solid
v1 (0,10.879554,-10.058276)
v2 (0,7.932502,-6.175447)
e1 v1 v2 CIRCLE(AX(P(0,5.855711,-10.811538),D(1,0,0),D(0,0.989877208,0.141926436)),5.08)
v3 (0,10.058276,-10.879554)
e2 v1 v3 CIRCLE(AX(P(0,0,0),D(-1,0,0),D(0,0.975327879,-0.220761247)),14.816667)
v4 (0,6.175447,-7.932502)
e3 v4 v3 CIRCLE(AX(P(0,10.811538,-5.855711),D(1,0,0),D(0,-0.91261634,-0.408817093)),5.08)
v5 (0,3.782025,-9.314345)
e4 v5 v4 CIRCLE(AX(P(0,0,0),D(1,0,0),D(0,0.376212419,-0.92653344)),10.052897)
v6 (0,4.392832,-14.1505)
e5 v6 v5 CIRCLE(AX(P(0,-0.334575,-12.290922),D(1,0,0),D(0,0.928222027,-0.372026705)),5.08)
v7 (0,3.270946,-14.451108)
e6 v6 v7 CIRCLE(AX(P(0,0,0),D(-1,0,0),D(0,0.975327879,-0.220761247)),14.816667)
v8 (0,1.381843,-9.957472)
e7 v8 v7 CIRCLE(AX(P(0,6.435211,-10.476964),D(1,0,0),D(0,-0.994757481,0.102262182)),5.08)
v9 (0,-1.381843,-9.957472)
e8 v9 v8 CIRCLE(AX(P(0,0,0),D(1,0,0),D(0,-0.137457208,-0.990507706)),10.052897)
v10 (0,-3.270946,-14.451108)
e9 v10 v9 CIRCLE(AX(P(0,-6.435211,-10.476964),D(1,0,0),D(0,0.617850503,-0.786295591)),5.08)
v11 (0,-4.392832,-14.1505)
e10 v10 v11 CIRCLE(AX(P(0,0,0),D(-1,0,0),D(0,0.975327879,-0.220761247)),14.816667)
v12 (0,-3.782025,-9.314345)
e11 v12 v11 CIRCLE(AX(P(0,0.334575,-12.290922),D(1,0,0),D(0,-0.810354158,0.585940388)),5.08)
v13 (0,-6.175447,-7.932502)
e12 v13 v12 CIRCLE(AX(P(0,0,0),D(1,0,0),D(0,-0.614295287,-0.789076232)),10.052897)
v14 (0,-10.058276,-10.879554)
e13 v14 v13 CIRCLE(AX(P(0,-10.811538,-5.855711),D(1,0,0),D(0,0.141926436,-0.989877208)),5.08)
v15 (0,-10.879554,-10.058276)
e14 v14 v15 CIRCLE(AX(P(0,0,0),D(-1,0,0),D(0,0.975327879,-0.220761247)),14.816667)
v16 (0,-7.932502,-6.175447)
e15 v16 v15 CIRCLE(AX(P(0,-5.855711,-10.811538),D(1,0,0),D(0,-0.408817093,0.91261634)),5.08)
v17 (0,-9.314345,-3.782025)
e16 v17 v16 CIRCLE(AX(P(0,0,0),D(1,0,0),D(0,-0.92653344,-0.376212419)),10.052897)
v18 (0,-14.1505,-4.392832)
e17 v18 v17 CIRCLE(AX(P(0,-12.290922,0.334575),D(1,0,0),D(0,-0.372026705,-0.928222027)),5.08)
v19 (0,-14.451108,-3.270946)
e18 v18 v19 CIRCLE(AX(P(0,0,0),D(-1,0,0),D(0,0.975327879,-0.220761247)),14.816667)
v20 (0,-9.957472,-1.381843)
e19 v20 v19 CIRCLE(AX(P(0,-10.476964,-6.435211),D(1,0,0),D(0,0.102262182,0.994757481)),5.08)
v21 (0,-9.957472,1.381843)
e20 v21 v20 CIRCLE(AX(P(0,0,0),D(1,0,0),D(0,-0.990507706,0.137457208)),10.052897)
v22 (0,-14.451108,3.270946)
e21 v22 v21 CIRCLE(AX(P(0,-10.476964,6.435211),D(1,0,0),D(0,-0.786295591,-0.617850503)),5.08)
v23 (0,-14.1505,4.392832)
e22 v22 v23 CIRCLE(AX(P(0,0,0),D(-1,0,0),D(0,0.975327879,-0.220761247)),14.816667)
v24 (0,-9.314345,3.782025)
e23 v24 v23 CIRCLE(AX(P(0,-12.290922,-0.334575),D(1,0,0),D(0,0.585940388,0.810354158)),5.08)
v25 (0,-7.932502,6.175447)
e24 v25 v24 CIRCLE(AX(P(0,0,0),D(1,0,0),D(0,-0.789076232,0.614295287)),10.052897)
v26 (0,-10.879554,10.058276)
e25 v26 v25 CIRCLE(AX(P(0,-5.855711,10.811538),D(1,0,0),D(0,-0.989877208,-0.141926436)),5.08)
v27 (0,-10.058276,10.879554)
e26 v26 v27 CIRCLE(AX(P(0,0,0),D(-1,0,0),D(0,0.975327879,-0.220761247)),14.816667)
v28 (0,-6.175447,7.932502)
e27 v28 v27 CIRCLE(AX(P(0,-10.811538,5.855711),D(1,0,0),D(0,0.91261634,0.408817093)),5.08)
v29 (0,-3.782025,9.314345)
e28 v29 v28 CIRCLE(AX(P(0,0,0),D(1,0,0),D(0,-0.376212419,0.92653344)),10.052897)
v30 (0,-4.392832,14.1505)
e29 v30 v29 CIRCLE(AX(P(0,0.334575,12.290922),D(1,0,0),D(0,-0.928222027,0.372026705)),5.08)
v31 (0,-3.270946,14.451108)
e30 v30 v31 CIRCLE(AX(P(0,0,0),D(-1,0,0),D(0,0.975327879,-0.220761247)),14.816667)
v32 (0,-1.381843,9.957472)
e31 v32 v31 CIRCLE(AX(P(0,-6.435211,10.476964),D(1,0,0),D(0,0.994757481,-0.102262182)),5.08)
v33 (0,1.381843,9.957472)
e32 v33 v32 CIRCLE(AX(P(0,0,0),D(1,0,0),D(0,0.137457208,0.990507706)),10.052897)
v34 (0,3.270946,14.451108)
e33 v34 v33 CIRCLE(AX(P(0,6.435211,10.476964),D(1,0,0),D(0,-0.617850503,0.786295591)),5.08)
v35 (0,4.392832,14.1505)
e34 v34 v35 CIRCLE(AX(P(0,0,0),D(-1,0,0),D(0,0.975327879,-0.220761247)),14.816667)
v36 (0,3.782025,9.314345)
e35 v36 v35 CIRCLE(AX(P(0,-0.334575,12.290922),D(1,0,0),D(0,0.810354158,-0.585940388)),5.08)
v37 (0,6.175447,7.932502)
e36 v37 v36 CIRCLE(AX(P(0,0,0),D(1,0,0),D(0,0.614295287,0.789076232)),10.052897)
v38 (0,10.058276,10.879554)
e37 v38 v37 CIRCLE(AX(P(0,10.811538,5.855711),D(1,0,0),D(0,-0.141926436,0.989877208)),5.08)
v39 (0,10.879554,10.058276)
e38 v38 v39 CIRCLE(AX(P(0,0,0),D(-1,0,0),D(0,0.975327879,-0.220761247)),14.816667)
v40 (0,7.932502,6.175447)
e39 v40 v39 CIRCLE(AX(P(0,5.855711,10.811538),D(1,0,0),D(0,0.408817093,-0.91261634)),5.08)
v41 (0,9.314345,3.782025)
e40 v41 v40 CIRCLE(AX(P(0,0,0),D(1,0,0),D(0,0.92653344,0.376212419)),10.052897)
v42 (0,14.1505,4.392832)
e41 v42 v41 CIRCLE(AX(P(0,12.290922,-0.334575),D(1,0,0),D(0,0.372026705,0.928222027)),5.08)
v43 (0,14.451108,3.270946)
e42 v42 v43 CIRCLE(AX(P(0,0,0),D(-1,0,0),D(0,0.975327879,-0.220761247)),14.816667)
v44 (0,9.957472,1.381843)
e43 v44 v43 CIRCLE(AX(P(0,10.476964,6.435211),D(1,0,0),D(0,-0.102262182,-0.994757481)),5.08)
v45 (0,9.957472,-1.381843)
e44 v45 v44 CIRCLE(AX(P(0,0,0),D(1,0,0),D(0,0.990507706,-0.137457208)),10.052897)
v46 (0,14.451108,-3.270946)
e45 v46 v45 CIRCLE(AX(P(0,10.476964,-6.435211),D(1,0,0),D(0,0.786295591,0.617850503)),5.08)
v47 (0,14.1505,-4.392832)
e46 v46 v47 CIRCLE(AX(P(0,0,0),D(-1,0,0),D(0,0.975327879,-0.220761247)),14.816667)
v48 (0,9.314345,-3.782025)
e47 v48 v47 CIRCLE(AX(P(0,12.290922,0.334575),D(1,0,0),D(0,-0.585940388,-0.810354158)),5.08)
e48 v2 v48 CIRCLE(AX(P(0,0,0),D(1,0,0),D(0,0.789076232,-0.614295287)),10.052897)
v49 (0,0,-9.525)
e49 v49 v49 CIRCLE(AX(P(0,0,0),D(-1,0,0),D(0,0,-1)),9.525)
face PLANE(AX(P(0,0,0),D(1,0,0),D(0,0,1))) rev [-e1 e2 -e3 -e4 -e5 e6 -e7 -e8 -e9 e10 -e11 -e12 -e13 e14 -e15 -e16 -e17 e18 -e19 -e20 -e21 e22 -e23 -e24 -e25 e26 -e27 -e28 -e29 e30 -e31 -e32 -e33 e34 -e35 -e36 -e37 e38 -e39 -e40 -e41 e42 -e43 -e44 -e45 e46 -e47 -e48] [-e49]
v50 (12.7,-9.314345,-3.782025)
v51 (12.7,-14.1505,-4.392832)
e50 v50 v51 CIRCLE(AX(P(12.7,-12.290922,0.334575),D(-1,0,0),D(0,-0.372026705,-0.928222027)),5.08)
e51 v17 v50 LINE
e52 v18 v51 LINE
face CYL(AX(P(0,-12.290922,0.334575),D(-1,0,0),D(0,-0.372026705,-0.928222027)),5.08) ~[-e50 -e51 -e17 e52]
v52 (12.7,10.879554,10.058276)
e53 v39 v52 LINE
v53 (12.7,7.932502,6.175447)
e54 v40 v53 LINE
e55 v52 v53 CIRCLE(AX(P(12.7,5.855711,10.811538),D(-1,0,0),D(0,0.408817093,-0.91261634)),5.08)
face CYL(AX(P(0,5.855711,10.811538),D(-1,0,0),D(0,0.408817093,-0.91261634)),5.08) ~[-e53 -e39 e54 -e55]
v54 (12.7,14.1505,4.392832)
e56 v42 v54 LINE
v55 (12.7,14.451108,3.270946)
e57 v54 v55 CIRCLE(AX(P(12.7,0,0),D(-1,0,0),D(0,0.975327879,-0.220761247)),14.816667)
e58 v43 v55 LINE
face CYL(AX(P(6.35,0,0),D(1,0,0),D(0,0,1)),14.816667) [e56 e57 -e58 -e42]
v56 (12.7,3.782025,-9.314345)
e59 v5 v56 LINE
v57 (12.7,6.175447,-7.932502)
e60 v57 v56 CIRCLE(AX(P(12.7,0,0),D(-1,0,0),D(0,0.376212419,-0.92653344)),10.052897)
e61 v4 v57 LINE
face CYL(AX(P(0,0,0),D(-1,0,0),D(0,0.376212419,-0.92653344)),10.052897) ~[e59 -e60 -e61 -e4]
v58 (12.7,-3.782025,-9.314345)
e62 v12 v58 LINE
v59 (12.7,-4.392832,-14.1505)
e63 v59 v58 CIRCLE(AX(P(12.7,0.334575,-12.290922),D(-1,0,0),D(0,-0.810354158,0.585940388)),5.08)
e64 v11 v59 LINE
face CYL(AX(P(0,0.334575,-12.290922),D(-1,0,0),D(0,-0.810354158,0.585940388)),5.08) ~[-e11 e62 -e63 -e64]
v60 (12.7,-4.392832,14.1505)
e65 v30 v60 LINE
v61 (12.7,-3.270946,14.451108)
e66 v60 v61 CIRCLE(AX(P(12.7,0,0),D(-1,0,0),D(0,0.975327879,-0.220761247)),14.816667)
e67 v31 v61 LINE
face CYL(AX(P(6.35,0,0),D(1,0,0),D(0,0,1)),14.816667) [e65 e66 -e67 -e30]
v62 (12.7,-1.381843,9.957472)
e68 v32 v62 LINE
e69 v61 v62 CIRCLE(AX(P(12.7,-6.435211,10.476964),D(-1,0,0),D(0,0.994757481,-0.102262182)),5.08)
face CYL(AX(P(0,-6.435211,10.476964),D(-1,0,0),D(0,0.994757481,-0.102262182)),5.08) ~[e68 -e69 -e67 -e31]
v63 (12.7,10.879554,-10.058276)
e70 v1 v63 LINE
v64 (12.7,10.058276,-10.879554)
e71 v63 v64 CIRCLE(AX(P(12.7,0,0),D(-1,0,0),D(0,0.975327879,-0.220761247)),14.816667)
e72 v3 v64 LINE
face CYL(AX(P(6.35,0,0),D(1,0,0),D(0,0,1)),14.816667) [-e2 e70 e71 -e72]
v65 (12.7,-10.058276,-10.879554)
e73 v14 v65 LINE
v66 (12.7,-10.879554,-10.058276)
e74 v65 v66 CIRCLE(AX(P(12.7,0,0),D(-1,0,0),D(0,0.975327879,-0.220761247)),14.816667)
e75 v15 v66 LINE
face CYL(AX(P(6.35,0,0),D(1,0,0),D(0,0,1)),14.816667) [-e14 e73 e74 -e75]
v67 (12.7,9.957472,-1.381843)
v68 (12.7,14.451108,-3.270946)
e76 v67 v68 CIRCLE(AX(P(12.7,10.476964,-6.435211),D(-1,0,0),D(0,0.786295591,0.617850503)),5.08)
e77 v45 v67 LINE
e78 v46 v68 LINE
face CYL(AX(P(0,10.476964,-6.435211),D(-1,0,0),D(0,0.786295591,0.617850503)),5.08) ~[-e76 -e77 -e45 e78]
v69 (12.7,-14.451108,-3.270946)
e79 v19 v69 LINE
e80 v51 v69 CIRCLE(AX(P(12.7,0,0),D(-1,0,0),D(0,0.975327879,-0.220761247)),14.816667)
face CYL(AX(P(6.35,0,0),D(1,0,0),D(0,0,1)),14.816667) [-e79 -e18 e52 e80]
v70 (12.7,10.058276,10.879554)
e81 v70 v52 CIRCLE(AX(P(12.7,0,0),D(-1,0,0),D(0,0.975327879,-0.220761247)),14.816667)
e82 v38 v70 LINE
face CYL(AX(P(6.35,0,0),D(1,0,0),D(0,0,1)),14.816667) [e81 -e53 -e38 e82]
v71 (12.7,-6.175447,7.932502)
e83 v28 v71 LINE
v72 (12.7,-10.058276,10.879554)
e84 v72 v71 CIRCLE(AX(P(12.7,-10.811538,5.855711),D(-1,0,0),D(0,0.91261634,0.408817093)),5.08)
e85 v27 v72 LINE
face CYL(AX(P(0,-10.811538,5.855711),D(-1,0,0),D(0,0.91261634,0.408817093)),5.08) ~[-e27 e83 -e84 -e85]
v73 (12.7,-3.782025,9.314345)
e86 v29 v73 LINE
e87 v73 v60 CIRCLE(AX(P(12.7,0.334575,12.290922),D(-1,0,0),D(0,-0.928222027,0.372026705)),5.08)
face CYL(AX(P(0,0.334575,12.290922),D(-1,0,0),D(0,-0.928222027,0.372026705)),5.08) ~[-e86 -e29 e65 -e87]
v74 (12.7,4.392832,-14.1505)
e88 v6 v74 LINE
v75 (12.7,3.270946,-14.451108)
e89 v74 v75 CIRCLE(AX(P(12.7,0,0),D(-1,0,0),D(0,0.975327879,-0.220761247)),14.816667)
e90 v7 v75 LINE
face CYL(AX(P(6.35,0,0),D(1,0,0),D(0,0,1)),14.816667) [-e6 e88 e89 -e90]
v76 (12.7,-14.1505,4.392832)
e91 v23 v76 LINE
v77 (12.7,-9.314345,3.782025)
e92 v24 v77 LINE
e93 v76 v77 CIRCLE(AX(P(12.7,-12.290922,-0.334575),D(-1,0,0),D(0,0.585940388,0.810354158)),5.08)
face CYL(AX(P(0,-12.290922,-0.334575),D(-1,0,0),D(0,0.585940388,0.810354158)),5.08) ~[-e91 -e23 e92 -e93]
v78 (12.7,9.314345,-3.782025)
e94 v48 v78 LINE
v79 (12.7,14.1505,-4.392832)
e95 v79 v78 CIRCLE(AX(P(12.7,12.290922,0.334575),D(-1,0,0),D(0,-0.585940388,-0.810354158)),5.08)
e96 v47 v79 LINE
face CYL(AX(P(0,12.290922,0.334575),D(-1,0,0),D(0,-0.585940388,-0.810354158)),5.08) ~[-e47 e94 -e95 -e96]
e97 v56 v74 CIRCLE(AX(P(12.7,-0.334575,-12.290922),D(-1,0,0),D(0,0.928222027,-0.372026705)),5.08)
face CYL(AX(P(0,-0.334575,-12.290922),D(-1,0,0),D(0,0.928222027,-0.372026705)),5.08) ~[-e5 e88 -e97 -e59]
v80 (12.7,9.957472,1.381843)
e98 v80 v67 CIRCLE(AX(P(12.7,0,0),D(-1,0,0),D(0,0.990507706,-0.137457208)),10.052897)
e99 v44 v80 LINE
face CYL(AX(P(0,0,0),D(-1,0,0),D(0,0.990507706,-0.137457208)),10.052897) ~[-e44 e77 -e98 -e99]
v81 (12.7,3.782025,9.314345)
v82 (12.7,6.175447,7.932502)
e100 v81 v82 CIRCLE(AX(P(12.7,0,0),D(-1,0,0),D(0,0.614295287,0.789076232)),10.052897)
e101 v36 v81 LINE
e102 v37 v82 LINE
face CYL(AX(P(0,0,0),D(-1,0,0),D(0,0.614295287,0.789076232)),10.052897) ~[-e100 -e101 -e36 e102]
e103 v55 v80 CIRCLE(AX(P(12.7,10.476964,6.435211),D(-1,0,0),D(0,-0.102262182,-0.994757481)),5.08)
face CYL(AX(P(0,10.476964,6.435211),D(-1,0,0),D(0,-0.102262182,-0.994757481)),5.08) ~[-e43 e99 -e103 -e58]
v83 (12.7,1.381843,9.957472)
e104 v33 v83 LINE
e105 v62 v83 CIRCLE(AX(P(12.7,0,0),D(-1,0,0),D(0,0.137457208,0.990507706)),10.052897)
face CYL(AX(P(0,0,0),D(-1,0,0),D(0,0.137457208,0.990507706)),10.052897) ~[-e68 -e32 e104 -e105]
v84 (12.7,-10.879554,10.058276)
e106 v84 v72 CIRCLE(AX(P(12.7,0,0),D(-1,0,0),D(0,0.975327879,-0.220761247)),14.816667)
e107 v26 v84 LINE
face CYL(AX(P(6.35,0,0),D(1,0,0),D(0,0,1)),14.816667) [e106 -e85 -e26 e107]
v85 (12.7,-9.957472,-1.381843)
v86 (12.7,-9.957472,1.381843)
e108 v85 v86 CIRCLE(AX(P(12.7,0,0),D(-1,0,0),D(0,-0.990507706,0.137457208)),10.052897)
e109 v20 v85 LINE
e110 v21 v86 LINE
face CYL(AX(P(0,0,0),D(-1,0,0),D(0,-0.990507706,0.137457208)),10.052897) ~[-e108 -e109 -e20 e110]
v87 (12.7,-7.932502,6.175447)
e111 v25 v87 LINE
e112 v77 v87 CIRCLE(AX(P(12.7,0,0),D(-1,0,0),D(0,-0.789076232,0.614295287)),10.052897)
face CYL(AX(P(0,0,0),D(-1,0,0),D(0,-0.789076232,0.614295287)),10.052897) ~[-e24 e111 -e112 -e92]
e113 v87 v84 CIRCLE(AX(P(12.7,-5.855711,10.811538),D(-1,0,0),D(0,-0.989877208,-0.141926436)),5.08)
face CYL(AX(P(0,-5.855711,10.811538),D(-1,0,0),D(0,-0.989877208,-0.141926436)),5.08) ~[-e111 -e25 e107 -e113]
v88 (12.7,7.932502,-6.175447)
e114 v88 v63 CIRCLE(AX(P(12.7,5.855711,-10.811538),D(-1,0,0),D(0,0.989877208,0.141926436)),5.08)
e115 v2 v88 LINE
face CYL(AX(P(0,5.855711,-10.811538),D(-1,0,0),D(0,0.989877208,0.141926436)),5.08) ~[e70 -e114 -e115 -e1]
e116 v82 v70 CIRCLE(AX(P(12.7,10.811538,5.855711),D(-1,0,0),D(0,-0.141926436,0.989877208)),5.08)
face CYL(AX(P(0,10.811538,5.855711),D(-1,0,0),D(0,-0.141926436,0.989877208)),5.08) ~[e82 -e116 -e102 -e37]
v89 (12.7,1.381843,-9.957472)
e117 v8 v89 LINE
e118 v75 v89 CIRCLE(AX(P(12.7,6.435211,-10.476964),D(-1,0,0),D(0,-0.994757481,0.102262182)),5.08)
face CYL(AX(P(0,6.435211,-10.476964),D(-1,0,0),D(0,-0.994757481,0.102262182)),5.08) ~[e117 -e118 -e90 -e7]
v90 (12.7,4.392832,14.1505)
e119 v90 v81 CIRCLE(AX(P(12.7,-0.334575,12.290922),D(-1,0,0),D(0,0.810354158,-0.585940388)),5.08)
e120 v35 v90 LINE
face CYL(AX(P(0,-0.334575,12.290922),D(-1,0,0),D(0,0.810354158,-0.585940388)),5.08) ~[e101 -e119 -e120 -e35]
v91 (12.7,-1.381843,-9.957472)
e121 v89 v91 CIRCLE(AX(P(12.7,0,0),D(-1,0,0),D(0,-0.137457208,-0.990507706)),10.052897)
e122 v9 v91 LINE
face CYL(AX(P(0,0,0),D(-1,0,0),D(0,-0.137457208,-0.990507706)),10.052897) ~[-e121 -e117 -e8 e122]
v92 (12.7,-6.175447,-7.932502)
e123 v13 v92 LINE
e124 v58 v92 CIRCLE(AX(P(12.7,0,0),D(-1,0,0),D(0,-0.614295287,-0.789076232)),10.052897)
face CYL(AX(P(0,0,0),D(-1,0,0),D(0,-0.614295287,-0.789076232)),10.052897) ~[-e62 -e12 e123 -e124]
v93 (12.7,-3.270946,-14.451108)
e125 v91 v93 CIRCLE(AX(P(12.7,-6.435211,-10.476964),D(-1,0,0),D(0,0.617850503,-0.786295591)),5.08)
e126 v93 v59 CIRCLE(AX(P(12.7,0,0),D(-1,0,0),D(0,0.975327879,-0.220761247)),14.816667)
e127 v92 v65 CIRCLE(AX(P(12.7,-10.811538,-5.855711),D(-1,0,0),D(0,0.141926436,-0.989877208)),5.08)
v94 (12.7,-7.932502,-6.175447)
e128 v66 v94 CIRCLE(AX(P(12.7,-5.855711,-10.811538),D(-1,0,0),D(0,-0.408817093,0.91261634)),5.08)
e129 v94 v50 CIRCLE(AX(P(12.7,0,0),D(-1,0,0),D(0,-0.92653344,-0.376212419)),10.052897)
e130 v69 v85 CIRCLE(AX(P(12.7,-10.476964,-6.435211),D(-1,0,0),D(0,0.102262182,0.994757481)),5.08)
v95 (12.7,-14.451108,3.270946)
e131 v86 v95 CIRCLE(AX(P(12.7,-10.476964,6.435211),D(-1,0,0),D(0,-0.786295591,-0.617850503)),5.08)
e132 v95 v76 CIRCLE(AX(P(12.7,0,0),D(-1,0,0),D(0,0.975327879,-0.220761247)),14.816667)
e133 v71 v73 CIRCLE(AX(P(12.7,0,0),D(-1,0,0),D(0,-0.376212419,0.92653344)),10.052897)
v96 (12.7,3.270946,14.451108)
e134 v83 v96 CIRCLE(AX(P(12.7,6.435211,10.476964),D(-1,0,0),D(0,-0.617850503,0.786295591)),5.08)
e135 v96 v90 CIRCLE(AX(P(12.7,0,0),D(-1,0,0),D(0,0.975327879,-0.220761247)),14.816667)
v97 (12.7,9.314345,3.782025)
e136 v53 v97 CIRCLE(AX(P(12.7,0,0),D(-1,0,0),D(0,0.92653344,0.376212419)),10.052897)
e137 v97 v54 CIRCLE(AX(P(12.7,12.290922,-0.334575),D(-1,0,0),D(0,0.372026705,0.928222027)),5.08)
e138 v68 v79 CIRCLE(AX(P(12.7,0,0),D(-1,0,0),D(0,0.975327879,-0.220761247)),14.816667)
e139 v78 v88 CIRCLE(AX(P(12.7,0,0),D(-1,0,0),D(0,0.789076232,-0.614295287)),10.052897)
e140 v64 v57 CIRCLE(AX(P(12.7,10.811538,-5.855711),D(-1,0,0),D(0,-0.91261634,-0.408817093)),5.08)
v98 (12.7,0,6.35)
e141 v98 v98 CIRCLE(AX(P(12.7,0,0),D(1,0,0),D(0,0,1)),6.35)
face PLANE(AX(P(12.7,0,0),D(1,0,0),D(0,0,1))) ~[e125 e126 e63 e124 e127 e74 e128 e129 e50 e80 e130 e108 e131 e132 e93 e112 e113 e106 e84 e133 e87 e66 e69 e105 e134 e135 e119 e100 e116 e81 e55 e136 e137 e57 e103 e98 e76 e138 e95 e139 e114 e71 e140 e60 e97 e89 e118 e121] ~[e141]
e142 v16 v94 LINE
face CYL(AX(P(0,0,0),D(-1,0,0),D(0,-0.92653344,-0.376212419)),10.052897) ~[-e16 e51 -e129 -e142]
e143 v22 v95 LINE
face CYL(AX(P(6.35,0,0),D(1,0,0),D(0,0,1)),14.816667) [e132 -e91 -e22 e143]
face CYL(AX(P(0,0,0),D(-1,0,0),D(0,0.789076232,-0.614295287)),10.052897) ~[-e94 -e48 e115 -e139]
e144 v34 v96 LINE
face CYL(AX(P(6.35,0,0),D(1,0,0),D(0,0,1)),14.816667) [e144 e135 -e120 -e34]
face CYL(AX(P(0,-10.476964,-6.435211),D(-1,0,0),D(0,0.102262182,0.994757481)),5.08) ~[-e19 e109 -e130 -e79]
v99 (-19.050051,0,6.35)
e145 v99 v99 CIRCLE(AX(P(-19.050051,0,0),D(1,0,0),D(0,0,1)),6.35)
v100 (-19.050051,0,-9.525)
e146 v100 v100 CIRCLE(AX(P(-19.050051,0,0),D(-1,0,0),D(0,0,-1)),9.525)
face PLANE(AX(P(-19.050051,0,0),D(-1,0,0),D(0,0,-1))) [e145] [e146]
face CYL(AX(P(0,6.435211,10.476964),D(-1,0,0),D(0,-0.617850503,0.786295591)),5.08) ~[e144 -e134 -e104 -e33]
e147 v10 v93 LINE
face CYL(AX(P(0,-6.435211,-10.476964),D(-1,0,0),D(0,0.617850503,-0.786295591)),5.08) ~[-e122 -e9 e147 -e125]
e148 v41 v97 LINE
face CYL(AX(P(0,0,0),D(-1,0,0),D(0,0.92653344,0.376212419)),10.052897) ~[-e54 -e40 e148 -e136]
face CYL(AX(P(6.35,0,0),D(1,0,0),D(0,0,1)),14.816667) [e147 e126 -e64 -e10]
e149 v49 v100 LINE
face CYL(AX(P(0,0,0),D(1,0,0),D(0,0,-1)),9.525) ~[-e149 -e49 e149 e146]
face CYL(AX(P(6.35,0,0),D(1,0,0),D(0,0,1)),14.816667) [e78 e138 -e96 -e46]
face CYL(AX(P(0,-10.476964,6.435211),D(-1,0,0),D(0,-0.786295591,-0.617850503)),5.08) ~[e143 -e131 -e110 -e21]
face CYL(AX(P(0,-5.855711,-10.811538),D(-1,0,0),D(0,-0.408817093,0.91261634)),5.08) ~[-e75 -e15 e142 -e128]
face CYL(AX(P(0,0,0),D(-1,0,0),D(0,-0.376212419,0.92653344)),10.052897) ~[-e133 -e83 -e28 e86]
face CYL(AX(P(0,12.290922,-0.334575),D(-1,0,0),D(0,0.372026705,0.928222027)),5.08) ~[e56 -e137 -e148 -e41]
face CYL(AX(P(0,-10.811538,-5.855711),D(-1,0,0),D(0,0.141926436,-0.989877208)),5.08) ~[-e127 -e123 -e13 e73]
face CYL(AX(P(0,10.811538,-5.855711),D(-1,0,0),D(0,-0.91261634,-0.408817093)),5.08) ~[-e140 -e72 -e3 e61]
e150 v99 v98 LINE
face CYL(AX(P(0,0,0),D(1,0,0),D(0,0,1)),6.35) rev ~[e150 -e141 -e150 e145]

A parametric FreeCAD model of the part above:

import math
import FreeCAD as App
import Part
import Sketcher
from FreeCAD import Vector
Q = App.Units.Quantity

doc = App.newDocument("Part")
body = doc.addObject("PartDesign::Body", "Body")

sketch1 = doc.addObject("Sketcher::SketchObject", "Sketch")
body.addObject(sketch1)
sketch1.AttachmentSupport = (doc.XZ_Plane, [""])
sketch1.MapMode = "FlatFace"
sketch1.addGeometry([
    Part.LineSegment(Vector(0, -14.816667, 0), Vector(0, 0, 0)),
    Part.LineSegment(Vector(0, 0, 0), Vector(12.7, 0, 0)),
    Part.LineSegment(Vector(12.7, 0, 0), Vector(12.7, -14.816667, 0)),
    Part.LineSegment(Vector(12.7, -14.816667, 0), Vector(0, -14.816667, 0)),
], False)
sketch1.addConstraint([
    Sketcher.Constraint("Coincident", 0, 2, 1, 1),
    Sketcher.Constraint("Coincident", 1, 2, 2, 1),
    Sketcher.Constraint("Coincident", 2, 2, 3, 1),
    Sketcher.Constraint("Coincident", 3, 2, 0, 1),
    Sketcher.Constraint("Vertical", 0),
    Sketcher.Constraint("Horizontal", 1),
    Sketcher.Constraint("Vertical", 2),
    Sketcher.Constraint("Horizontal", 3),
    Sketcher.Constraint("Coincident", 0, 2, -1, 1),
    Sketcher.Constraint("DistanceX", 1, 1, 1, 2, Q("0.5 in")),
    Sketcher.Constraint("DistanceY", 0, 1, 0, 2, Q("14.816667 mm")),
])
revolution = doc.addObject("PartDesign::Revolution", "Revolution")
body.addObject(revolution)
revolution.Profile = sketch1
revolution.ReferenceAxis = (sketch1, ["H_Axis"])
revolution.Angle = 360

sketch2 = doc.addObject("Sketcher::SketchObject", "Sketch001")
body.addObject(sketch2)
sketch2.AttachmentSupport = (doc.YZ_Plane, [""])
sketch2.MapMode = "FlatFace"
sketch2.addGeometry([
    Part.ArcOfCircle(Part.Circle(Vector(0, 0, 0), Vector(0, 0, 1), 10.052897), math.radians(-7.900732), math.radians(7.900732)),
    Part.ArcOfCircle(Part.Circle(Vector(10.476964, -6.435211, 0), Vector(0, 0, 1), 5.08), math.radians(38.159336), math.radians(95.869452)),
    Part.ArcOfCircle(Part.Circle(Vector(0, 0, 0), Vector(0, 0, 1), 14.842067), math.radians(-12.832832), math.radians(12.832832)),
    Part.ArcOfCircle(Part.Circle(Vector(10.476964, 6.435211, 0), Vector(0, 0, 1), 5.08), math.radians(-95.869452), math.radians(-38.159336)),
], False)
sketch2.addConstraint([
    Sketcher.Constraint("Coincident", 0, 1, 1, 2),
    Sketcher.Constraint("Coincident", 1, 1, 2, 1),
    Sketcher.Constraint("Coincident", 2, 2, 3, 2),
    Sketcher.Constraint("Coincident", 3, 1, 0, 2),
    Sketcher.Constraint("Coincident", 0, 3, -1, 1),
    Sketcher.Constraint("Coincident", 2, 3, -1, 1),
    Sketcher.Constraint("Equal", 1, 3),
    Sketcher.Constraint("Symmetric", 1, 3, 3, 3, -1),
    Sketcher.Constraint("Radius", 1, Q("0.2 in")),
    Sketcher.Constraint("Radius", 0, Q("10.052897 mm")),
    Sketcher.Constraint("Radius", 2, Q("14.842067 mm")),
    Sketcher.Constraint("DistanceY", 1, 3, -1, 1, Q("6.435211 mm")),
    Sketcher.Constraint("DistanceX", -1, 1, 0, 1, Q("9.957472 mm")),
])
pocket1 = doc.addObject("PartDesign::Pocket", "Pocket")
body.addObject(pocket1)
pocket1.Profile = sketch2
pocket1.Type = "ThroughAll"
pocket1.Reversed = True
doc.recompute()

polarpattern = doc.addObject("PartDesign::PolarPattern", "PolarPattern")
body.addObject(polarpattern)
polarpattern.Originals = [pocket1]
polarpattern.Axis = (doc.X_Axis, [""])
polarpattern.Angle = 360
polarpattern.Occurrences = 12
body.Tip = polarpattern

sketch3 = doc.addObject("Sketcher::SketchObject", "Sketch002")
body.addObject(sketch3)
sketch3.AttachmentSupport = (doc.YZ_Plane, [""])
sketch3.MapMode = "FlatFace"
sketch3.addGeometry(Part.Circle(Vector(0, 0, 0), Vector(0, 0, 1), 9.525), False)
sketch3.addConstraint([
    Sketcher.Constraint("Coincident", 0, 3, -1, 1),
    Sketcher.Constraint("Diameter", 0, Q("0.75 in")),
])
pad1 = doc.addObject("PartDesign::Pad", "Pad")
body.addObject(pad1)
pad1.Profile = sketch3
pad1.Length = 19.050051
pad1.Reversed = True

sketch4 = doc.addObject("Sketcher::SketchObject", "Sketch003")
body.addObject(sketch4)
sketch4.AttachmentSupport = (doc.YZ_Plane, [""])
sketch4.MapMode = "FlatFace"
sketch4.addGeometry(Part.Circle(Vector(0, 0, 0), Vector(0, 0, 1), 6.35), False)
sketch4.addConstraint([
    Sketcher.Constraint("Coincident", 0, 3, -1, 1),
    Sketcher.Constraint("Diameter", 0, Q("0.5 in")),
])
pocket2 = doc.addObject("PartDesign::Pocket", "Pocket001")
body.addObject(pocket2)
pocket2.Profile = sketch4
pocket2.Length = 63.500102
pocket2.Midplane = True

doc.recompute()
